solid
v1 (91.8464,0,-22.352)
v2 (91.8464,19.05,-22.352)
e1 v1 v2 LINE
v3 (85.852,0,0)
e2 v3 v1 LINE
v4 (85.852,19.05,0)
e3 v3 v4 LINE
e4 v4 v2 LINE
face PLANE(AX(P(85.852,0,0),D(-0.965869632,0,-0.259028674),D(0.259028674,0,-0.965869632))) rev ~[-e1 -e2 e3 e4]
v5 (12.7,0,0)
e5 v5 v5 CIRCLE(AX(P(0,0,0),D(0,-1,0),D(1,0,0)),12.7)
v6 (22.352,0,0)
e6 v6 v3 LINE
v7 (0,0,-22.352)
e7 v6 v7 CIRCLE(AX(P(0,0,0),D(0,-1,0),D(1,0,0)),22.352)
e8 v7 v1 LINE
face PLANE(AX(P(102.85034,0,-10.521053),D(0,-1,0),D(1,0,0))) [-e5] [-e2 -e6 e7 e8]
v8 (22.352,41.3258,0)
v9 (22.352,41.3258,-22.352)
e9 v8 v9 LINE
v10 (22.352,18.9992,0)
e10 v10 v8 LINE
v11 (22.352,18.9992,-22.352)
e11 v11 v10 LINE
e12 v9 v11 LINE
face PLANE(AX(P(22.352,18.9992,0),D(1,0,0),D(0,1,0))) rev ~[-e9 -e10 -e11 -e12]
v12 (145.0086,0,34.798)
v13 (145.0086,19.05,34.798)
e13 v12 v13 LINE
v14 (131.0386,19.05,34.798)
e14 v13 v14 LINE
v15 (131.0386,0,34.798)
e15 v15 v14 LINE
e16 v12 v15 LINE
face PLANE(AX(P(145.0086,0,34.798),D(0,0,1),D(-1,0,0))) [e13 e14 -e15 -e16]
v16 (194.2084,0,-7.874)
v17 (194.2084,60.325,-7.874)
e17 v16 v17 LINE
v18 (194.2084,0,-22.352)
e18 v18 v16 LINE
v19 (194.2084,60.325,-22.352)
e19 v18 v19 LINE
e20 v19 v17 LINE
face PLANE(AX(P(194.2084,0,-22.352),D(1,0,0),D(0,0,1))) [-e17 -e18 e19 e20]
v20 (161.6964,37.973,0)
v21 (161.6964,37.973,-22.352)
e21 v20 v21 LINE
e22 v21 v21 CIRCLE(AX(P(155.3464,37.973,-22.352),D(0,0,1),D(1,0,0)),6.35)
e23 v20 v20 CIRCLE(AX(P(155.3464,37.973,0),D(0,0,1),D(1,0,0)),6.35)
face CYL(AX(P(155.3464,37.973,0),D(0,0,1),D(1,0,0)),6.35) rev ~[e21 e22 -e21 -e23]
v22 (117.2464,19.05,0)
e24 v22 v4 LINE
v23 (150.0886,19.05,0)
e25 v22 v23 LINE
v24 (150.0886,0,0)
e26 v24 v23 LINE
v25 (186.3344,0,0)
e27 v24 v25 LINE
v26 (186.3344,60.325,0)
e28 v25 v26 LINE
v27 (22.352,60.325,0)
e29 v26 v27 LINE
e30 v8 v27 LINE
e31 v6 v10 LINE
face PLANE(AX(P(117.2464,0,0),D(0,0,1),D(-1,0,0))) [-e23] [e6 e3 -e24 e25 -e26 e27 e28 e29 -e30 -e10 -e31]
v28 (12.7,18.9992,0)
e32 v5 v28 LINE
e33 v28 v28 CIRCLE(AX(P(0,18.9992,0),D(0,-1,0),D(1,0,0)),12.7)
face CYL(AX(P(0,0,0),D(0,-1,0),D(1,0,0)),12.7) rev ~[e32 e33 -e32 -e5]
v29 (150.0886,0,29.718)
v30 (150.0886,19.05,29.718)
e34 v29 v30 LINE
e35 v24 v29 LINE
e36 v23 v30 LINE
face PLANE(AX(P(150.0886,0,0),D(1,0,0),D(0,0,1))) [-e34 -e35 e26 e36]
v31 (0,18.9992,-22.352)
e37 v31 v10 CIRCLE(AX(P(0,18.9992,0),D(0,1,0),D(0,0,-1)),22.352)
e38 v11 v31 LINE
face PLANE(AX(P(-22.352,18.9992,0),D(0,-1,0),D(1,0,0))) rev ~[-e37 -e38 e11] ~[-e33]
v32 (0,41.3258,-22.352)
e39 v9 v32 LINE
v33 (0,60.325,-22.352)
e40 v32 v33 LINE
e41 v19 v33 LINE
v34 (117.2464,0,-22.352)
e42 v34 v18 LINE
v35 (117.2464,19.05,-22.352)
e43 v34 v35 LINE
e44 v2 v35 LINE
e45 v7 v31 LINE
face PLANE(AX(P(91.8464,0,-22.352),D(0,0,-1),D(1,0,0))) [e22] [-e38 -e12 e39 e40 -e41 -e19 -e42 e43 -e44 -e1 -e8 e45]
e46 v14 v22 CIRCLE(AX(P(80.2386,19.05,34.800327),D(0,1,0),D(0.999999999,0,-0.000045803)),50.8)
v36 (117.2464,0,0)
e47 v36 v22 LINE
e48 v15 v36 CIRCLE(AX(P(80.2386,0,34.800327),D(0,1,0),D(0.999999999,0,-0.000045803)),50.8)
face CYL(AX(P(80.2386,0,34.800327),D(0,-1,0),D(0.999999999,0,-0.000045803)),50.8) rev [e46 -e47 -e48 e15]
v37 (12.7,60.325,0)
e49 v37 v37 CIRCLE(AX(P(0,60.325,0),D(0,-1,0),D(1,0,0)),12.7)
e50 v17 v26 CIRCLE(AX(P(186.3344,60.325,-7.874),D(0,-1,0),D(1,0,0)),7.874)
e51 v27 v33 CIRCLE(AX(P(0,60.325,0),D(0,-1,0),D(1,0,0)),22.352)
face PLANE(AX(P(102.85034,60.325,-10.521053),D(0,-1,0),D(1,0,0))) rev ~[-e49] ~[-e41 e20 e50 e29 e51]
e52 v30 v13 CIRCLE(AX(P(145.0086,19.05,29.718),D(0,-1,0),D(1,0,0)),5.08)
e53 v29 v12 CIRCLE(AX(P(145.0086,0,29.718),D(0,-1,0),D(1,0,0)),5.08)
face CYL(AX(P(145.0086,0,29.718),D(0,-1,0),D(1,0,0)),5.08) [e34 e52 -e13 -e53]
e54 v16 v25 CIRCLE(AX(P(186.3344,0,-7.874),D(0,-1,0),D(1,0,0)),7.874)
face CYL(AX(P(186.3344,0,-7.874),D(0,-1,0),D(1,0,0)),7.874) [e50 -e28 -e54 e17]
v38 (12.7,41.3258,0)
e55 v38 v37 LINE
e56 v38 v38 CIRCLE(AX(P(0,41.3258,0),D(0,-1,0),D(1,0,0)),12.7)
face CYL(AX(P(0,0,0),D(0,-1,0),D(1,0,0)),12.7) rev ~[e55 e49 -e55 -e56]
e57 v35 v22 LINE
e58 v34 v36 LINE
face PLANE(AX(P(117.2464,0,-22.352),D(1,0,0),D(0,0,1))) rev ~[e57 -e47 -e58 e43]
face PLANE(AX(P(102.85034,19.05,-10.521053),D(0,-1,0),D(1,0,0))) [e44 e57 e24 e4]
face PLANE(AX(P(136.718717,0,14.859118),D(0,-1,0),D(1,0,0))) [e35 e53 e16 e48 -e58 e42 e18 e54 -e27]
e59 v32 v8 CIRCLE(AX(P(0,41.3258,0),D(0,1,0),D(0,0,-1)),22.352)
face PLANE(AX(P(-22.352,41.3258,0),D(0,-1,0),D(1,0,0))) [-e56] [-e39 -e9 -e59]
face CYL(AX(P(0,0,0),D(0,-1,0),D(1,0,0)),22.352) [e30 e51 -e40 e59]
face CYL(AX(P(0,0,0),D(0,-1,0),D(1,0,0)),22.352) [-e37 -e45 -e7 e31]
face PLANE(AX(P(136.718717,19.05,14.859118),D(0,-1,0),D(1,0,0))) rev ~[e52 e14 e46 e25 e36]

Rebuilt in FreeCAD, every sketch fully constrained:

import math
import FreeCAD as App
import Part
import Sketcher
Q = App.Units.Quantity


def add_polygon(sketch, points):
    """Adds a closed chain of lines whose ends are joined by coincident constraints."""
    first, n = sketch.GeometryCount, len(points)
    for a, b in zip(points, points[1:] + points[:1]):
        sketch.addGeometry(Part.LineSegment(App.Vector(*a, 0), App.Vector(*b, 0)), False)
    for i in range(n):
        sketch.addConstraint(Sketcher.Constraint("Coincident", first + i, 2, first + (i + 1) % n, 1))

doc = App.newDocument("Part")
body = doc.addObject("PartDesign::Body", "Body")

# Sketch on XZ plane
sketch1 = body.newObject("Sketcher::SketchObject", "Sketch")
sketch1.AttachmentSupport = (doc.getObject("XZ_Plane"), [""])
sketch1.MapMode = "FlatFace"
sketch1.addGeometry([
    Part.ArcOfCircle(Part.Circle(App.Vector(0, 0, 0), App.Vector(0, 0, 1), 22), math.radians(-90), math.radians(0)),
    Part.ArcOfCircle(Part.Circle(App.Vector(0, 0, 0), App.Vector(0, 0, 1), 22), math.radians(0), math.radians(270)),
    Part.Circle(App.Vector(0, 0, 0), App.Vector(0, 0, 1), 13),
], False)
sketch1.addConstraint([
    Sketcher.Constraint("Tangent", 0, 1, 1, 2),
    Sketcher.Constraint("Coincident", 1, 1, 0, 2),
    Sketcher.Constraint("Coincident", 0, 3, -1, 1),
    Sketcher.Constraint("Coincident", 2, 3, -1, 1),
    Sketcher.Constraint("PointOnObject", 0, 1, -2),
    Sketcher.Constraint("PointOnObject", 1, 1, -1),
    Sketcher.Constraint("Diameter", 2, Q("1 in")),
    Sketcher.Constraint("Radius", 0, Q("0.88 in")),
])
pad1 = body.newObject("PartDesign::Pad", "Pad")
pad1.Profile = sketch1
pad1.Length = Q("2.375 in")
pad1.Reversed = True

# Sketch on XZ plane
sketch2 = body.newObject("Sketcher::SketchObject", "Sketch001")
sketch2.AttachmentSupport = (doc.getObject("XZ_Plane"), [""])
sketch2.MapMode = "FlatFace"
sketch2.addGeometry([
    Part.LineSegment(App.Vector(86, 0, 0), App.Vector(22, 0, 0)),
    Part.ArcOfCircle(Part.Circle(App.Vector(0, 0, 0), App.Vector(0, 0, 1), 22), math.radians(-90), math.radians(0)),
    Part.LineSegment(App.Vector(0, -22, 0), App.Vector(92, -22, 0)),
    Part.LineSegment(App.Vector(92, -22, 0), App.Vector(86, 0, 0)),
], False)
sketch2.addConstraint([
    Sketcher.Constraint("Coincident", 0, 2, 1, 2),
    Sketcher.Constraint("Tangent", 1, 1, 2, 1),
    Sketcher.Constraint("Coincident", 2, 2, 3, 1),
    Sketcher.Constraint("Coincident", 3, 2, 0, 1),
    Sketcher.Constraint("Horizontal", 0),
    Sketcher.Constraint("Horizontal", 2),
    Sketcher.Constraint("Coincident", 1, 3, -1, 1),
    Sketcher.Constraint("PointOnObject", 0, 2, -1),
    Sketcher.Constraint("Radius", 1, Q("0.88 in")),
    Sketcher.Constraint("DistanceX", 0, 2, 0, 1, Q("2.5 in")),
    Sketcher.Constraint("DistanceX", 2, 1, 2, 2, Q("3.616 in")),
])
pad2 = body.newObject("PartDesign::Pad", "Pad001")
pad2.Profile = sketch2
pad2.Length = Q("2.375 in")
pad2.Reversed = True
body2 = doc.addObject("PartDesign::Body", "Body001")

# Sketch on XZ plane
sketch3 = body2.newObject("Sketcher::SketchObject", "Sketch002")
sketch3.AttachmentSupport = (doc.getObject("XZ_Plane001"), [""])
sketch3.MapMode = "FlatFace"
sketch3.addGeometry([
    Part.LineSegment(App.Vector(117, 0, 0), App.Vector(117, -22, 0)),  # 0
    Part.LineSegment(App.Vector(117, -22, 0), App.Vector(194, -22, 0)),  # 1
    Part.LineSegment(App.Vector(194, -22, 0), App.Vector(194, -8, 0)),  # 2
    Part.ArcOfCircle(Part.Circle(App.Vector(186, -8, 0), App.Vector(0, 0, 1), 8), math.radians(0), math.radians(90)),  # 3
    Part.LineSegment(App.Vector(186, 0, 0), App.Vector(117, 0, 0)),  # 4
], False)
sketch3.addConstraint([
    Sketcher.Constraint("Coincident", 0, 2, 1, 1),
    Sketcher.Constraint("Coincident", 1, 2, 2, 1),
    Sketcher.Constraint("Tangent", 2, 2, 3, 1),
    Sketcher.Constraint("Tangent", 3, 2, 4, 1),
    Sketcher.Constraint("Coincident", 4, 2, 0, 1),
    Sketcher.Constraint("Vertical", 0),
    Sketcher.Constraint("Horizontal", 1),
    Sketcher.Constraint("Vertical", 2),
    Sketcher.Constraint("Horizontal", 4),
    Sketcher.Constraint("PointOnObject", 3, 2, -1),
    Sketcher.Constraint("Radius", 3, Q("0.31 in")),
    Sketcher.Constraint("DistanceX", 1, 1, 1, 2, Q("3.03 in")),
    Sketcher.Constraint("DistanceY", 0, 2, 0, 1, Q("0.88 in")),
    Sketcher.Constraint("DistanceX", -1, 1, 3, 3, Q("7.336 in")),
])
pad3 = body2.newObject("PartDesign::Pad", "Pad002")
pad3.Profile = sketch3
pad3.Length = Q("2.375 in")
pad3.Reversed = True
body.AllowCompound = True
doc.recompute()

boolean = body.newObject("PartDesign::Boolean", "Boolean")
boolean.Type = "Fuse"
boolean.addObjects([body2])

# Sketch on XZ plane
sketch4 = body.newObject("Sketcher::SketchObject", "Sketch003")
sketch4.AttachmentSupport = (doc.getObject("XZ_Plane"), [""])
sketch4.MapMode = "FlatFace"
add_polygon(sketch4, [(117, 0), (86, 0), (92, -22), (117, -22)])  # lines 0-3
sketch4.addConstraint([
    Sketcher.Constraint("Horizontal", 0),
    Sketcher.Constraint("Horizontal", 2),
    Sketcher.Constraint("Vertical", 3),
    Sketcher.Constraint("PointOnObject", 0, 2, -1),
    Sketcher.Constraint("DistanceX", 2, 1, 2, 2, Q("1 in")),
    Sketcher.Constraint("DistanceY", 3, 1, 3, 2, Q("0.88 in")),
    Sketcher.Constraint("DistanceX", 0, 2, 0, 1, Q("1.236 in")),
    Sketcher.Constraint("DistanceX", -1, 1, 0, 2, Q("3.38 in")),
])
pad4 = body.newObject("PartDesign::Pad", "Pad003")
pad4.Profile = sketch4
pad4.Length = Q("2.375 in")
pad4.Reversed = True

# Sketch on XZ plane
sketch5 = body.newObject("Sketcher::SketchObject", "Sketch004")
sketch5.AttachmentSupport = (doc.getObject("XZ_Plane"), [""])
sketch5.MapMode = "FlatFace"
add_polygon(sketch5, [(117, 0), (86, 0), (92, -22), (117, -22)])  # lines 0-3
sketch5.addConstraint([
    Sketcher.Constraint("Horizontal", 0),
    Sketcher.Constraint("Horizontal", 2),
    Sketcher.Constraint("Vertical", 3),
    Sketcher.Constraint("PointOnObject", 0, 2, -1),
    Sketcher.Constraint("DistanceX", 2, 1, 2, 2, Q("1 in")),
    Sketcher.Constraint("DistanceY", 3, 1, 3, 2, Q("0.88 in")),
    Sketcher.Constraint("DistanceX", 0, 2, 0, 1, Q("1.236 in")),
    Sketcher.Constraint("DistanceX", -1, 1, 0, 2, Q("3.38 in")),
])
pocket1 = body.newObject("PartDesign::Pocket", "Pocket")
pocket1.Profile = sketch5
pocket1.Length = Q("0.75 in")

# Sketch on XZ plane
sketch6 = body.newObject("Sketcher::SketchObject", "Sketch005")
sketch6.AttachmentSupport = (doc.getObject("XZ_Plane"), [""])
sketch6.MapMode = "FlatFace"
sketch6.addGeometry([
    Part.ArcOfCircle(Part.Circle(App.Vector(80, 35, 0), App.Vector(0, 0, 1), 51), math.radians(-43), math.radians(0)),  # 0
    Part.LineSegment(App.Vector(117, 0, 0), App.Vector(150, 0, 0)),  # 1
    Part.LineSegment(App.Vector(150, 0, 0), App.Vector(150, 30, 0)),  # 2
    Part.ArcOfCircle(Part.Circle(App.Vector(145, 30, 0), App.Vector(0, 0, 1), 5), math.radians(0), math.radians(90)),  # 3
    Part.LineSegment(App.Vector(145, 35, 0), App.Vector(131, 35, 0)),  # 4
], False)
sketch6.addConstraint([
    Sketcher.Constraint("Coincident", 0, 1, 1, 1),
    Sketcher.Constraint("Coincident", 1, 2, 2, 1),
    Sketcher.Constraint("Tangent", 2, 2, 3, 1),
    Sketcher.Constraint("Tangent", 3, 2, 4, 1),
    Sketcher.Constraint("Coincident", 4, 2, 0, 2),
    Sketcher.Constraint("Horizontal", 1),
    Sketcher.Constraint("Vertical", 2),
    Sketcher.Constraint("Horizontal", 4),
    Sketcher.Constraint("PointOnObject", 0, 1, -1),
    Sketcher.Constraint("Radius", 0, Q("2 in")),
    Sketcher.Constraint("Radius", 3, Q("0.2 in")),
    Sketcher.Constraint("DistanceX", 4, 2, 4, 1, Q("0.55 in")),
    Sketcher.Constraint("DistanceY", 2, 1, 2, 2, Q("1.17 in")),
    Sketcher.Constraint("DistanceX", 1, 1, 1, 2, Q("1.293 in")),
    Sketcher.Constraint("DistanceX", -1, 1, 0, 3, Q("3.159 in")),
])
pad5 = body.newObject("PartDesign::Pad", "Pad004")
pad5.Profile = sketch6
pad5.Length = Q("0.75 in")
pad5.Reversed = True

# Sketch on XY plane
sketch7 = body.newObject("Sketcher::SketchObject", "Sketch006")
sketch7.AttachmentSupport = (doc.getObject("XY_Plane"), [""])
sketch7.MapMode = "FlatFace"
add_polygon(sketch7, [(-22, 41), (-22, 19), (22, 19), (22, 41)])  # lines 0-3
sketch7.addConstraint([
    Sketcher.Constraint("Vertical", 0),
    Sketcher.Constraint("Horizontal", 1),
    Sketcher.Constraint("Vertical", 2),
    Sketcher.Constraint("Horizontal", 3),
    Sketcher.Constraint("DistanceX", 1, 1, 1, 2, Q("1.76 in")),
    Sketcher.Constraint("DistanceY", 0, 2, 0, 1, Q("0.879 in")),
    Sketcher.Constraint("DistanceX", 0, 2, -1, 1, Q("0.88 in")),
    Sketcher.Constraint("DistanceY", -1, 1, 0, 2, Q("0.748 in")),
])
pocket2 = body.newObject("PartDesign::Pocket", "Pocket001")
pocket2.Profile = sketch7
pocket2.Length = Q("2.9 in")
pocket2.Midplane = True

# Sketch on XY plane
sketch8 = body.newObject("Sketcher::SketchObject", "Sketch007")
sketch8.AttachmentSupport = (doc.getObject("XY_Plane"), [""])
sketch8.MapMode = "FlatFace"
sketch8.addGeometry(Part.Circle(App.Vector(155, 38, 0), App.Vector(0, 0, 1), 6), False)
sketch8.addConstraint([
    Sketcher.Constraint("Diameter", 0, Q("0.5 in")),
    Sketcher.Constraint("DistanceX", -1, 1, 0, 3, Q("6.116 in")),
    Sketcher.Constraint("DistanceY", -1, 1, 0, 3, Q("1.495 in")),
])
pocket3 = body.newObject("PartDesign::Pocket", "Pocket002")
pocket3.Profile = sketch8
pocket3.Length = Q("1 in")

doc.recompute()
